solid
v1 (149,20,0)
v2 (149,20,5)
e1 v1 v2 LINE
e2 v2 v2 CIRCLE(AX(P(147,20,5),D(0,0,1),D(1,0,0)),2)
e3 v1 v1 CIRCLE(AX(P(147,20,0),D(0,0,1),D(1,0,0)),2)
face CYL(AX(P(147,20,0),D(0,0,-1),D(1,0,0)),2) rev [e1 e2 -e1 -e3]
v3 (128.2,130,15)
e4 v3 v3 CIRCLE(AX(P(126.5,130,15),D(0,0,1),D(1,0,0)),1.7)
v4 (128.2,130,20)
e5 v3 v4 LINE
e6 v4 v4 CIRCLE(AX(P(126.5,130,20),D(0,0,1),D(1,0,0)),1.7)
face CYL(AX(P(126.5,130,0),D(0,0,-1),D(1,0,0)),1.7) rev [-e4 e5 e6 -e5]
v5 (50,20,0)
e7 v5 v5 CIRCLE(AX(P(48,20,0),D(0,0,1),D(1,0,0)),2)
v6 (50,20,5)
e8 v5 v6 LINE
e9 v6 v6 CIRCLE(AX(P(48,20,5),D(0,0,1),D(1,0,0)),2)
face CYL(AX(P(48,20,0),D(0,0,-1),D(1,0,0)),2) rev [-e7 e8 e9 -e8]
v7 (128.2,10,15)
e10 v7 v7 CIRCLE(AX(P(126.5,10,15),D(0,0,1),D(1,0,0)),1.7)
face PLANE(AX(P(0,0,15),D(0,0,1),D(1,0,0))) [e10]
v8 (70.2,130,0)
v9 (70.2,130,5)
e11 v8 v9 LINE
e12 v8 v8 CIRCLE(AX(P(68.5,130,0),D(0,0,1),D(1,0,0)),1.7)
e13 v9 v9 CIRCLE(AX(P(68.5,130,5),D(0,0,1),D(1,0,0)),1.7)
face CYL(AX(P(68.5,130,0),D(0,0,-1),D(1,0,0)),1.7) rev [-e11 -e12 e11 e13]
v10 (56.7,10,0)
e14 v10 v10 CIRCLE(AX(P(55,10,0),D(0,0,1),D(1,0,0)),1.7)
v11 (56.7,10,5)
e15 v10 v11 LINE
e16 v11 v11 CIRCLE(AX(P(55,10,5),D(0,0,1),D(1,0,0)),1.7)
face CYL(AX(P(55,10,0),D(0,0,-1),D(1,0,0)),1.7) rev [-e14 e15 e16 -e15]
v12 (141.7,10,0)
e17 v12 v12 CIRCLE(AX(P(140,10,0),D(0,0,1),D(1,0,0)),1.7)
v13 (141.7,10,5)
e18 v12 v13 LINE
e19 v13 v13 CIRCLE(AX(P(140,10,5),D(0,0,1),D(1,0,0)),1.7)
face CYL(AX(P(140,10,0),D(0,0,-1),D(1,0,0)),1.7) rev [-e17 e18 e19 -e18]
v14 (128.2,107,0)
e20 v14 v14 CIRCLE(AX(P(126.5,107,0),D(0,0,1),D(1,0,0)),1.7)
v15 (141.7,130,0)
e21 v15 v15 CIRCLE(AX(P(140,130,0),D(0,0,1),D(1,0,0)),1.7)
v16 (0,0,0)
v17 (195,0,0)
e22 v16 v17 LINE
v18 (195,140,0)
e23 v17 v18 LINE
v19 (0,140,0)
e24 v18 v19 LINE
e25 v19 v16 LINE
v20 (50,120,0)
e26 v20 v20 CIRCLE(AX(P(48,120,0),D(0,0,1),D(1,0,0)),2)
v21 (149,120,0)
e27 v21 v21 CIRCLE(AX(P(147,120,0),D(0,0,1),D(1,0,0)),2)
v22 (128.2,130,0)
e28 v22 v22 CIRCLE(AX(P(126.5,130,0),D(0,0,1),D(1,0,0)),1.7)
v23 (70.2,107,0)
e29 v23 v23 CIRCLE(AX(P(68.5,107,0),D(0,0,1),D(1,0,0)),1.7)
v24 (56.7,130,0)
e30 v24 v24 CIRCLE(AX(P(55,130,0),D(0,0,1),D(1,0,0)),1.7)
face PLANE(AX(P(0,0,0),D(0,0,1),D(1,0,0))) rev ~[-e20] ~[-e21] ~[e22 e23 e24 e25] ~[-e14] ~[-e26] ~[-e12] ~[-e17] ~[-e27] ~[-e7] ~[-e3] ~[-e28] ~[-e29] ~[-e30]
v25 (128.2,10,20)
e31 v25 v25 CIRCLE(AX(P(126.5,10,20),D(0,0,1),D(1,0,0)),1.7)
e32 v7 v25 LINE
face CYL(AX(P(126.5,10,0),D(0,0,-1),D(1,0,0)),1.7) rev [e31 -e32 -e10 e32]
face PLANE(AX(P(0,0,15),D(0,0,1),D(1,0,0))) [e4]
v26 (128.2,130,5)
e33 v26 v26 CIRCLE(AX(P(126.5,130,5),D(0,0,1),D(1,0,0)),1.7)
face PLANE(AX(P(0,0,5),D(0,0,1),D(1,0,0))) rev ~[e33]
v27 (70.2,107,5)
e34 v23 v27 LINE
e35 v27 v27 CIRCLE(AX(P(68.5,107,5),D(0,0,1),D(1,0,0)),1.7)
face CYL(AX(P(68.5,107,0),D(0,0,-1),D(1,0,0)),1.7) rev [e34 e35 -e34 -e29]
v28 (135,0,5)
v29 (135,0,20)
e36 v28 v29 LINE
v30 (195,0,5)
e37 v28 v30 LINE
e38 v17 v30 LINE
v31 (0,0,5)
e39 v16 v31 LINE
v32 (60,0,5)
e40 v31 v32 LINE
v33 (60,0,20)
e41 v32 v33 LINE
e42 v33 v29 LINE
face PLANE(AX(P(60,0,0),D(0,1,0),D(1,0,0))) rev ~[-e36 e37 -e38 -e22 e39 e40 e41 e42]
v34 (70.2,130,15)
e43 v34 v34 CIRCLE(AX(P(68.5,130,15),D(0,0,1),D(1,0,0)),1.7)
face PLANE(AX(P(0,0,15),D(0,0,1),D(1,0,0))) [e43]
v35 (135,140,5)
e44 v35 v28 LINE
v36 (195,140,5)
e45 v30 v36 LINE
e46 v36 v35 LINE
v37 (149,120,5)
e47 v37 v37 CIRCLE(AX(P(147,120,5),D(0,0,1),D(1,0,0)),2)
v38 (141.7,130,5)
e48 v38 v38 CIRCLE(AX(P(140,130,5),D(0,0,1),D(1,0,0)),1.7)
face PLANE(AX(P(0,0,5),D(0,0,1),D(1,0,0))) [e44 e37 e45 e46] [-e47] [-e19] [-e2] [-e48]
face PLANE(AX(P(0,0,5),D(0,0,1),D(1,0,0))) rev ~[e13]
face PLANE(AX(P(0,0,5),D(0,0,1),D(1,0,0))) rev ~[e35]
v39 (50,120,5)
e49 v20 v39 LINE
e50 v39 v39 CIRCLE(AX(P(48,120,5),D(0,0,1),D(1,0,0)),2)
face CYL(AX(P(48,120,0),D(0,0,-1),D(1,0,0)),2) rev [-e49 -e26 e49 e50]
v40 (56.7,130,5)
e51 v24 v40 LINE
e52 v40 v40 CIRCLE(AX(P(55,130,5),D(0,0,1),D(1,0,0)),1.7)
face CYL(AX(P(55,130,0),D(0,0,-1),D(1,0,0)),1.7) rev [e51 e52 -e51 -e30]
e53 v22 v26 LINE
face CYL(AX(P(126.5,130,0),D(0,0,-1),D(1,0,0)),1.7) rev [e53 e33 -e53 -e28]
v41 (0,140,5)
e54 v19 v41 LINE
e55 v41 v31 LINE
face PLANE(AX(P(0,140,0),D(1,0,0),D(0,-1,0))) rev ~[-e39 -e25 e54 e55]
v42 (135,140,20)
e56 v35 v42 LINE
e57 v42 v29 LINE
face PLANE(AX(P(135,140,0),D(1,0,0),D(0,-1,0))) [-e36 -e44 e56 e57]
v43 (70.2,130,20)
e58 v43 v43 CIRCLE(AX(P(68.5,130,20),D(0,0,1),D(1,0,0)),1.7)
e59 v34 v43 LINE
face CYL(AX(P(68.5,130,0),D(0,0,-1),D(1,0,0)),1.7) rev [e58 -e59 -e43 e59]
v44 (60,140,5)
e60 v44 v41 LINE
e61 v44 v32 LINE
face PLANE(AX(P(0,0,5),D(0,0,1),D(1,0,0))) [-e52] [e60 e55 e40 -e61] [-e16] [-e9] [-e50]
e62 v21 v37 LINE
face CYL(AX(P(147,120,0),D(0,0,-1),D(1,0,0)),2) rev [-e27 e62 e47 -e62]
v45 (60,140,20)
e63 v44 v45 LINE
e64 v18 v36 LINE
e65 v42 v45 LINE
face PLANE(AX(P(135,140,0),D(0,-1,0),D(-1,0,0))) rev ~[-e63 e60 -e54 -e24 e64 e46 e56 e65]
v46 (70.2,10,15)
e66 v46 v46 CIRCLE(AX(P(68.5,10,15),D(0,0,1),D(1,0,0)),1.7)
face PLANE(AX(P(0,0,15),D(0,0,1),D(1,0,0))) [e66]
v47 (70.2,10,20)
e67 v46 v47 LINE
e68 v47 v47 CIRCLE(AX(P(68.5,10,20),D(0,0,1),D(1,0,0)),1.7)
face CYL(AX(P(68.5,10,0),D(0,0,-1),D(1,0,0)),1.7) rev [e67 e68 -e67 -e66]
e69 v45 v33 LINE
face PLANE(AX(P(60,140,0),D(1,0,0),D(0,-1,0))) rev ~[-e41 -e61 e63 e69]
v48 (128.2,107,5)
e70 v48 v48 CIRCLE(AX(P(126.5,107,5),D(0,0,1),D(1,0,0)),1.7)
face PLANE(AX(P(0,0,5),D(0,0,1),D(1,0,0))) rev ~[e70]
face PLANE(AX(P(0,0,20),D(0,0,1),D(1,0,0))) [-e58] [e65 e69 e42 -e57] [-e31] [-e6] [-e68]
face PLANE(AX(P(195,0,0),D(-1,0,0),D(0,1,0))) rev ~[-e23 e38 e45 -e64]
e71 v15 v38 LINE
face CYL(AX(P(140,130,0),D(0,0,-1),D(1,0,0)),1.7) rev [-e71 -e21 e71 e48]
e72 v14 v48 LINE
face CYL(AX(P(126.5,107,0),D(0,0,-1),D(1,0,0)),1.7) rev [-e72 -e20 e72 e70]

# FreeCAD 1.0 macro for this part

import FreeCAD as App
import Part
import Sketcher
from FreeCAD import Vector


def add_polygon(sketch, points):
    """Adds a closed chain of lines whose ends are joined by coincident constraints."""
    first, n = sketch.GeometryCount, len(points)
    for a, b in zip(points, points[1:] + points[:1]):
        sketch.addGeometry(Part.LineSegment(App.Vector(*a, 0), App.Vector(*b, 0)), False)
    for i in range(n):
        sketch.addConstraint(Sketcher.Constraint("Coincident", first + i, 2, first + (i + 1) % n, 1))

doc = App.newDocument("Part")
body = doc.addObject("PartDesign::Body", "Body")

# Sketch on XY plane
sketch1 = body.newObject("Sketcher::SketchObject", "Sketch")
sketch1.AttachmentSupport = (doc.getObject("XY_Plane"), [""])
sketch1.MapMode = "FlatFace"
add_polygon(sketch1, [(60, 140), (60, 0), (135, 0), (135, 140)])  # lines 0-3
sketch1.addGeometry(Part.Circle(Vector(68.5, 10, 0), Vector(0, 0, 1), 1.7), False)  # 4
sketch1.addGeometry(Part.Circle(Vector(126.5, 10, 0), Vector(0, 0, 1), 1.7), False)  # 5
sketch1.addGeometry(Part.Circle(Vector(68.5, 107, 0), Vector(0, 0, 1), 1.7), False)  # 6
sketch1.addGeometry(Part.Circle(Vector(68.5, 130, 0), Vector(0, 0, 1), 1.7), False)  # 7
sketch1.addGeometry(Part.Circle(Vector(126.5, 107, 0), Vector(0, 0, 1), 1.7), False)  # 8
sketch1.addGeometry(Part.Circle(Vector(126.5, 130, 0), Vector(0, 0, 1), 1.7), False)  # 9
sketch1.addConstraint(Sketcher.Constraint("Vertical", 0))
sketch1.addConstraint(Sketcher.Constraint("Horizontal", 1))
sketch1.addConstraint(Sketcher.Constraint("Vertical", 2))
sketch1.addConstraint(Sketcher.Constraint("Horizontal", 3))
sketch1.addConstraint(Sketcher.Constraint("Equal", 4, 5))
sketch1.addConstraint(Sketcher.Constraint("Equal", 5, 6))
sketch1.addConstraint(Sketcher.Constraint("Equal", 6, 7))
sketch1.addConstraint(Sketcher.Constraint("Equal", 7, 8))
sketch1.addConstraint(Sketcher.Constraint("Equal", 8, 9))
sketch1.addConstraint(Sketcher.Constraint("PointOnObject", 0, 2, -1))
sketch1.addConstraint(Sketcher.Constraint("Horizontal", 4, 3, 5, 3))
sketch1.addConstraint(Sketcher.Constraint("Horizontal", 6, 3, 8, 3))
sketch1.addConstraint(Sketcher.Constraint("Horizontal", 7, 3, 9, 3))
sketch1.addConstraint(Sketcher.Constraint("Vertical", 4, 3, 6, 3))
sketch1.addConstraint(Sketcher.Constraint("Vertical", 6, 3, 7, 3))
sketch1.addConstraint(Sketcher.Constraint("Vertical", 5, 3, 8, 3))
sketch1.addConstraint(Sketcher.Constraint("Vertical", 8, 3, 9, 3))
sketch1.addConstraint(Sketcher.Constraint("Diameter", 4, 3.4))
sketch1.addConstraint(Sketcher.Constraint("DistanceX", 1, 1, 1, 2, 75.0))
sketch1.addConstraint(Sketcher.Constraint("DistanceY", 0, 2, 0, 1, 140.0))
sketch1.addConstraint(Sketcher.Constraint("DistanceY", -1, 1, 4, 3, 10.0))
sketch1.addConstraint(Sketcher.Constraint("DistanceX", -1, 1, 0, 2, 60.0))
sketch1.addConstraint(Sketcher.Constraint("DistanceX", 4, 3, 5, 3, 58.0))
sketch1.addConstraint(Sketcher.Constraint("DistanceY", 6, 3, 7, 3, 23.0))
sketch1.addConstraint(Sketcher.Constraint("DistanceY", 9, 3, 2, 2, 10.0))
sketch1.addConstraint(Sketcher.Constraint("DistanceX", -1, 1, 4, 3, 68.5))
pad1 = body.newObject("PartDesign::Pad", "Pad")
pad1.Profile = sketch1
pad1.Length = 20

# Sketch on XY plane
sketch2 = body.newObject("Sketcher::SketchObject", "Sketch001")
sketch2.AttachmentSupport = (doc.getObject("XY_Plane"), [""])
sketch2.MapMode = "FlatFace"
add_polygon(sketch2, [(0, 140), (0, 0), (60, 0), (60, 140)])  # lines 0-3
sketch2.addGeometry(Part.Circle(Vector(48, 20, 0), Vector(0, 0, 1), 2), False)  # 4
sketch2.addGeometry(Part.Circle(Vector(55, 10, 0), Vector(0, 0, 1), 1.7), False)  # 5
sketch2.addGeometry(Part.Circle(Vector(48, 120, 0), Vector(0, 0, 1), 2), False)  # 6
sketch2.addGeometry(Part.Circle(Vector(55, 130, 0), Vector(0, 0, 1), 1.7), False)  # 7
add_polygon(sketch2, [(135, 140), (135, 0), (195, 0), (195, 140)])  # lines 8-11
sketch2.addGeometry(Part.Circle(Vector(140, 10, 0), Vector(0, 0, 1), 1.7), False)  # 12
sketch2.addGeometry(Part.Circle(Vector(147, 20, 0), Vector(0, 0, 1), 2), False)  # 13
sketch2.addGeometry(Part.Circle(Vector(140, 130, 0), Vector(0, 0, 1), 1.7), False)  # 14
sketch2.addGeometry(Part.Circle(Vector(147, 120, 0), Vector(0, 0, 1), 2), False)  # 15
sketch2.addConstraint(Sketcher.Constraint("Vertical", 0))
sketch2.addConstraint(Sketcher.Constraint("Horizontal", 1))
sketch2.addConstraint(Sketcher.Constraint("Vertical", 2))
sketch2.addConstraint(Sketcher.Constraint("Horizontal", 3))
sketch2.addConstraint(Sketcher.Constraint("Vertical", 8))
sketch2.addConstraint(Sketcher.Constraint("Horizontal", 9))
sketch2.addConstraint(Sketcher.Constraint("Vertical", 10))
sketch2.addConstraint(Sketcher.Constraint("Horizontal", 11))
sketch2.addConstraint(Sketcher.Constraint("Coincident", 0, 2, -1, 1))
sketch2.addConstraint(Sketcher.Constraint("Equal", 4, 6))
sketch2.addConstraint(Sketcher.Constraint("Equal", 5, 7))
sketch2.addConstraint(Sketcher.Constraint("Equal", 7, 12))
sketch2.addConstraint(Sketcher.Constraint("Equal", 6, 13))
sketch2.addConstraint(Sketcher.Constraint("Equal", 12, 14))
sketch2.addConstraint(Sketcher.Constraint("Equal", 13, 15))
sketch2.addConstraint(Sketcher.Constraint("PointOnObject", 8, 2, -1))
sketch2.addConstraint(Sketcher.Constraint("Horizontal", 5, 3, 12, 3))
sketch2.addConstraint(Sketcher.Constraint("Horizontal", 4, 3, 13, 3))
sketch2.addConstraint(Sketcher.Constraint("Horizontal", 7, 3, 14, 3))
sketch2.addConstraint(Sketcher.Constraint("Horizontal", 6, 3, 15, 3))
sketch2.addConstraint(Sketcher.Constraint("Horizontal", 3, 2, 10, 2))
sketch2.addConstraint(Sketcher.Constraint("Vertical", 4, 3, 6, 3))
sketch2.addConstraint(Sketcher.Constraint("Vertical", 5, 3, 7, 3))
sketch2.addConstraint(Sketcher.Constraint("Vertical", 12, 3, 14, 3))
sketch2.addConstraint(Sketcher.Constraint("Vertical", 13, 3, 15, 3))
sketch2.addConstraint(Sketcher.Constraint("Equal", 3, 9))
sketch2.addConstraint(Sketcher.Constraint("Diameter", 4, 4.0))
sketch2.addConstraint(Sketcher.Constraint("Diameter", 5, 3.4))
sketch2.addConstraint(Sketcher.Constraint("DistanceX", 1, 1, 1, 2, 60.0))
sketch2.addConstraint(Sketcher.Constraint("DistanceY", 0, 2, 0, 1, 140.0))
sketch2.addConstraint(Sketcher.Constraint("DistanceY", -1, 1, 5, 3, 10.0))
sketch2.addConstraint(Sketcher.Constraint("DistanceX", -1, 1, 12, 3, 140.0))
sketch2.addConstraint(Sketcher.Constraint("DistanceY", 5, 3, 4, 3, 10.0))
sketch2.addConstraint(Sketcher.Constraint("DistanceY", 4, 3, 6, 3, 100.0))
sketch2.addConstraint(Sketcher.Constraint("DistanceY", 6, 3, 7, 3, 10.0))
sketch2.addConstraint(Sketcher.Constraint("DistanceX", 5, 3, 1, 2, 5.0))
sketch2.addConstraint(Sketcher.Constraint("DistanceX", 8, 2, 12, 3, 5.0))
sketch2.addConstraint(Sketcher.Constraint("DistanceX", -1, 1, 4, 3, 48.0))
sketch2.addConstraint(Sketcher.Constraint("DistanceX", -1, 1, 13, 3, 147.0))
pad2 = body.newObject("PartDesign::Pad", "Pad001")
pad2.Profile = sketch2
pad2.Length = 5

# Sketch on XY plane
sketch3 = body.newObject("Sketcher::SketchObject", "Sketch002")
sketch3.AttachmentSupport = (doc.getObject("XY_Plane"), [""])
sketch3.MapMode = "FlatFace"
sketch3.addGeometry(Part.Circle(Vector(68.5, 10, 0), Vector(0, 0, 1), 1.7), False)
sketch3.addGeometry(Part.Circle(Vector(126.5, 10, 0), Vector(0, 0, 1), 1.7), False)
sketch3.addConstraint(Sketcher.Constraint("Equal", 0, 1))
sketch3.addConstraint(Sketcher.Constraint("Horizontal", 0, 3, 1, 3))
sketch3.addConstraint(Sketcher.Constraint("Diameter", 0, 3.4))
sketch3.addConstraint(Sketcher.Constraint("DistanceY", -1, 1, 0, 3, 10.0))
sketch3.addConstraint(Sketcher.Constraint("DistanceX", 0, 3, 1, 3, 58.0))
sketch3.addConstraint(Sketcher.Constraint("DistanceX", -1, 1, 0, 3, 68.5))
pad3 = body.newObject("PartDesign::Pad", "Pad002")
pad3.Profile = sketch3
pad3.Length = 15

# Sketch on XY plane
sketch4 = body.newObject("Sketcher::SketchObject", "Sketch003")
sketch4.AttachmentSupport = (doc.getObject("XY_Plane"), [""])
sketch4.MapMode = "FlatFace"
sketch4.AttachmentOffset = App.Placement(Vector(0, 0, 5), App.Rotation())
sketch4.addGeometry(Part.Circle(Vector(68.5, 130, 0), Vector(0, 0, 1), 1.7), False)
sketch4.addGeometry(Part.Circle(Vector(126.5, 130, 0), Vector(0, 0, 1), 1.7), False)
sketch4.addConstraint(Sketcher.Constraint("Equal", 0, 1))
sketch4.addConstraint(Sketcher.Constraint("Horizontal", 0, 3, 1, 3))
sketch4.addConstraint(Sketcher.Constraint("Diameter", 0, 3.4))
sketch4.addConstraint(Sketcher.Constraint("DistanceX", 0, 3, 1, 3, 58.0))
sketch4.addConstraint(Sketcher.Constraint("DistanceY", -1, 1, 0, 3, 130.0))
sketch4.addConstraint(Sketcher.Constraint("DistanceX", -1, 1, 0, 3, 68.5))
pad4 = body.newObject("PartDesign::Pad", "Pad003")
pad4.Profile = sketch4
pad4.Length = 10

# Sketch on XY plane
sketch5 = body.newObject("Sketcher::SketchObject", "Sketch004")
sketch5.AttachmentSupport = (doc.getObject("XY_Plane"), [""])
sketch5.MapMode = "FlatFace"
sketch5.AttachmentOffset = App.Placement(Vector(0, 0, 5), App.Rotation())
sketch5.addGeometry(Part.Circle(Vector(68.5, 107, 0), Vector(0, 0, 1), 1.7), False)
sketch5.addGeometry(Part.Circle(Vector(126.5, 107, 0), Vector(0, 0, 1), 1.7), False)
sketch5.addConstraint(Sketcher.Constraint("Equal", 0, 1))
sketch5.addConstraint(Sketcher.Constraint("Horizontal", 0, 3, 1, 3))
sketch5.addConstraint(Sketcher.Constraint("Diameter", 0, 3.4))
sketch5.addConstraint(Sketcher.Constraint("DistanceX", 0, 3, 1, 3, 58.0))
sketch5.addConstraint(Sketcher.Constraint("DistanceY", -1, 1, 0, 3, 107.0))
sketch5.addConstraint(Sketcher.Constraint("DistanceX", -1, 1, 0, 3, 68.5))
pad5 = body.newObject("PartDesign::Pad", "Pad004")
pad5.Profile = sketch5
pad5.Length = 15

doc.recompute()
